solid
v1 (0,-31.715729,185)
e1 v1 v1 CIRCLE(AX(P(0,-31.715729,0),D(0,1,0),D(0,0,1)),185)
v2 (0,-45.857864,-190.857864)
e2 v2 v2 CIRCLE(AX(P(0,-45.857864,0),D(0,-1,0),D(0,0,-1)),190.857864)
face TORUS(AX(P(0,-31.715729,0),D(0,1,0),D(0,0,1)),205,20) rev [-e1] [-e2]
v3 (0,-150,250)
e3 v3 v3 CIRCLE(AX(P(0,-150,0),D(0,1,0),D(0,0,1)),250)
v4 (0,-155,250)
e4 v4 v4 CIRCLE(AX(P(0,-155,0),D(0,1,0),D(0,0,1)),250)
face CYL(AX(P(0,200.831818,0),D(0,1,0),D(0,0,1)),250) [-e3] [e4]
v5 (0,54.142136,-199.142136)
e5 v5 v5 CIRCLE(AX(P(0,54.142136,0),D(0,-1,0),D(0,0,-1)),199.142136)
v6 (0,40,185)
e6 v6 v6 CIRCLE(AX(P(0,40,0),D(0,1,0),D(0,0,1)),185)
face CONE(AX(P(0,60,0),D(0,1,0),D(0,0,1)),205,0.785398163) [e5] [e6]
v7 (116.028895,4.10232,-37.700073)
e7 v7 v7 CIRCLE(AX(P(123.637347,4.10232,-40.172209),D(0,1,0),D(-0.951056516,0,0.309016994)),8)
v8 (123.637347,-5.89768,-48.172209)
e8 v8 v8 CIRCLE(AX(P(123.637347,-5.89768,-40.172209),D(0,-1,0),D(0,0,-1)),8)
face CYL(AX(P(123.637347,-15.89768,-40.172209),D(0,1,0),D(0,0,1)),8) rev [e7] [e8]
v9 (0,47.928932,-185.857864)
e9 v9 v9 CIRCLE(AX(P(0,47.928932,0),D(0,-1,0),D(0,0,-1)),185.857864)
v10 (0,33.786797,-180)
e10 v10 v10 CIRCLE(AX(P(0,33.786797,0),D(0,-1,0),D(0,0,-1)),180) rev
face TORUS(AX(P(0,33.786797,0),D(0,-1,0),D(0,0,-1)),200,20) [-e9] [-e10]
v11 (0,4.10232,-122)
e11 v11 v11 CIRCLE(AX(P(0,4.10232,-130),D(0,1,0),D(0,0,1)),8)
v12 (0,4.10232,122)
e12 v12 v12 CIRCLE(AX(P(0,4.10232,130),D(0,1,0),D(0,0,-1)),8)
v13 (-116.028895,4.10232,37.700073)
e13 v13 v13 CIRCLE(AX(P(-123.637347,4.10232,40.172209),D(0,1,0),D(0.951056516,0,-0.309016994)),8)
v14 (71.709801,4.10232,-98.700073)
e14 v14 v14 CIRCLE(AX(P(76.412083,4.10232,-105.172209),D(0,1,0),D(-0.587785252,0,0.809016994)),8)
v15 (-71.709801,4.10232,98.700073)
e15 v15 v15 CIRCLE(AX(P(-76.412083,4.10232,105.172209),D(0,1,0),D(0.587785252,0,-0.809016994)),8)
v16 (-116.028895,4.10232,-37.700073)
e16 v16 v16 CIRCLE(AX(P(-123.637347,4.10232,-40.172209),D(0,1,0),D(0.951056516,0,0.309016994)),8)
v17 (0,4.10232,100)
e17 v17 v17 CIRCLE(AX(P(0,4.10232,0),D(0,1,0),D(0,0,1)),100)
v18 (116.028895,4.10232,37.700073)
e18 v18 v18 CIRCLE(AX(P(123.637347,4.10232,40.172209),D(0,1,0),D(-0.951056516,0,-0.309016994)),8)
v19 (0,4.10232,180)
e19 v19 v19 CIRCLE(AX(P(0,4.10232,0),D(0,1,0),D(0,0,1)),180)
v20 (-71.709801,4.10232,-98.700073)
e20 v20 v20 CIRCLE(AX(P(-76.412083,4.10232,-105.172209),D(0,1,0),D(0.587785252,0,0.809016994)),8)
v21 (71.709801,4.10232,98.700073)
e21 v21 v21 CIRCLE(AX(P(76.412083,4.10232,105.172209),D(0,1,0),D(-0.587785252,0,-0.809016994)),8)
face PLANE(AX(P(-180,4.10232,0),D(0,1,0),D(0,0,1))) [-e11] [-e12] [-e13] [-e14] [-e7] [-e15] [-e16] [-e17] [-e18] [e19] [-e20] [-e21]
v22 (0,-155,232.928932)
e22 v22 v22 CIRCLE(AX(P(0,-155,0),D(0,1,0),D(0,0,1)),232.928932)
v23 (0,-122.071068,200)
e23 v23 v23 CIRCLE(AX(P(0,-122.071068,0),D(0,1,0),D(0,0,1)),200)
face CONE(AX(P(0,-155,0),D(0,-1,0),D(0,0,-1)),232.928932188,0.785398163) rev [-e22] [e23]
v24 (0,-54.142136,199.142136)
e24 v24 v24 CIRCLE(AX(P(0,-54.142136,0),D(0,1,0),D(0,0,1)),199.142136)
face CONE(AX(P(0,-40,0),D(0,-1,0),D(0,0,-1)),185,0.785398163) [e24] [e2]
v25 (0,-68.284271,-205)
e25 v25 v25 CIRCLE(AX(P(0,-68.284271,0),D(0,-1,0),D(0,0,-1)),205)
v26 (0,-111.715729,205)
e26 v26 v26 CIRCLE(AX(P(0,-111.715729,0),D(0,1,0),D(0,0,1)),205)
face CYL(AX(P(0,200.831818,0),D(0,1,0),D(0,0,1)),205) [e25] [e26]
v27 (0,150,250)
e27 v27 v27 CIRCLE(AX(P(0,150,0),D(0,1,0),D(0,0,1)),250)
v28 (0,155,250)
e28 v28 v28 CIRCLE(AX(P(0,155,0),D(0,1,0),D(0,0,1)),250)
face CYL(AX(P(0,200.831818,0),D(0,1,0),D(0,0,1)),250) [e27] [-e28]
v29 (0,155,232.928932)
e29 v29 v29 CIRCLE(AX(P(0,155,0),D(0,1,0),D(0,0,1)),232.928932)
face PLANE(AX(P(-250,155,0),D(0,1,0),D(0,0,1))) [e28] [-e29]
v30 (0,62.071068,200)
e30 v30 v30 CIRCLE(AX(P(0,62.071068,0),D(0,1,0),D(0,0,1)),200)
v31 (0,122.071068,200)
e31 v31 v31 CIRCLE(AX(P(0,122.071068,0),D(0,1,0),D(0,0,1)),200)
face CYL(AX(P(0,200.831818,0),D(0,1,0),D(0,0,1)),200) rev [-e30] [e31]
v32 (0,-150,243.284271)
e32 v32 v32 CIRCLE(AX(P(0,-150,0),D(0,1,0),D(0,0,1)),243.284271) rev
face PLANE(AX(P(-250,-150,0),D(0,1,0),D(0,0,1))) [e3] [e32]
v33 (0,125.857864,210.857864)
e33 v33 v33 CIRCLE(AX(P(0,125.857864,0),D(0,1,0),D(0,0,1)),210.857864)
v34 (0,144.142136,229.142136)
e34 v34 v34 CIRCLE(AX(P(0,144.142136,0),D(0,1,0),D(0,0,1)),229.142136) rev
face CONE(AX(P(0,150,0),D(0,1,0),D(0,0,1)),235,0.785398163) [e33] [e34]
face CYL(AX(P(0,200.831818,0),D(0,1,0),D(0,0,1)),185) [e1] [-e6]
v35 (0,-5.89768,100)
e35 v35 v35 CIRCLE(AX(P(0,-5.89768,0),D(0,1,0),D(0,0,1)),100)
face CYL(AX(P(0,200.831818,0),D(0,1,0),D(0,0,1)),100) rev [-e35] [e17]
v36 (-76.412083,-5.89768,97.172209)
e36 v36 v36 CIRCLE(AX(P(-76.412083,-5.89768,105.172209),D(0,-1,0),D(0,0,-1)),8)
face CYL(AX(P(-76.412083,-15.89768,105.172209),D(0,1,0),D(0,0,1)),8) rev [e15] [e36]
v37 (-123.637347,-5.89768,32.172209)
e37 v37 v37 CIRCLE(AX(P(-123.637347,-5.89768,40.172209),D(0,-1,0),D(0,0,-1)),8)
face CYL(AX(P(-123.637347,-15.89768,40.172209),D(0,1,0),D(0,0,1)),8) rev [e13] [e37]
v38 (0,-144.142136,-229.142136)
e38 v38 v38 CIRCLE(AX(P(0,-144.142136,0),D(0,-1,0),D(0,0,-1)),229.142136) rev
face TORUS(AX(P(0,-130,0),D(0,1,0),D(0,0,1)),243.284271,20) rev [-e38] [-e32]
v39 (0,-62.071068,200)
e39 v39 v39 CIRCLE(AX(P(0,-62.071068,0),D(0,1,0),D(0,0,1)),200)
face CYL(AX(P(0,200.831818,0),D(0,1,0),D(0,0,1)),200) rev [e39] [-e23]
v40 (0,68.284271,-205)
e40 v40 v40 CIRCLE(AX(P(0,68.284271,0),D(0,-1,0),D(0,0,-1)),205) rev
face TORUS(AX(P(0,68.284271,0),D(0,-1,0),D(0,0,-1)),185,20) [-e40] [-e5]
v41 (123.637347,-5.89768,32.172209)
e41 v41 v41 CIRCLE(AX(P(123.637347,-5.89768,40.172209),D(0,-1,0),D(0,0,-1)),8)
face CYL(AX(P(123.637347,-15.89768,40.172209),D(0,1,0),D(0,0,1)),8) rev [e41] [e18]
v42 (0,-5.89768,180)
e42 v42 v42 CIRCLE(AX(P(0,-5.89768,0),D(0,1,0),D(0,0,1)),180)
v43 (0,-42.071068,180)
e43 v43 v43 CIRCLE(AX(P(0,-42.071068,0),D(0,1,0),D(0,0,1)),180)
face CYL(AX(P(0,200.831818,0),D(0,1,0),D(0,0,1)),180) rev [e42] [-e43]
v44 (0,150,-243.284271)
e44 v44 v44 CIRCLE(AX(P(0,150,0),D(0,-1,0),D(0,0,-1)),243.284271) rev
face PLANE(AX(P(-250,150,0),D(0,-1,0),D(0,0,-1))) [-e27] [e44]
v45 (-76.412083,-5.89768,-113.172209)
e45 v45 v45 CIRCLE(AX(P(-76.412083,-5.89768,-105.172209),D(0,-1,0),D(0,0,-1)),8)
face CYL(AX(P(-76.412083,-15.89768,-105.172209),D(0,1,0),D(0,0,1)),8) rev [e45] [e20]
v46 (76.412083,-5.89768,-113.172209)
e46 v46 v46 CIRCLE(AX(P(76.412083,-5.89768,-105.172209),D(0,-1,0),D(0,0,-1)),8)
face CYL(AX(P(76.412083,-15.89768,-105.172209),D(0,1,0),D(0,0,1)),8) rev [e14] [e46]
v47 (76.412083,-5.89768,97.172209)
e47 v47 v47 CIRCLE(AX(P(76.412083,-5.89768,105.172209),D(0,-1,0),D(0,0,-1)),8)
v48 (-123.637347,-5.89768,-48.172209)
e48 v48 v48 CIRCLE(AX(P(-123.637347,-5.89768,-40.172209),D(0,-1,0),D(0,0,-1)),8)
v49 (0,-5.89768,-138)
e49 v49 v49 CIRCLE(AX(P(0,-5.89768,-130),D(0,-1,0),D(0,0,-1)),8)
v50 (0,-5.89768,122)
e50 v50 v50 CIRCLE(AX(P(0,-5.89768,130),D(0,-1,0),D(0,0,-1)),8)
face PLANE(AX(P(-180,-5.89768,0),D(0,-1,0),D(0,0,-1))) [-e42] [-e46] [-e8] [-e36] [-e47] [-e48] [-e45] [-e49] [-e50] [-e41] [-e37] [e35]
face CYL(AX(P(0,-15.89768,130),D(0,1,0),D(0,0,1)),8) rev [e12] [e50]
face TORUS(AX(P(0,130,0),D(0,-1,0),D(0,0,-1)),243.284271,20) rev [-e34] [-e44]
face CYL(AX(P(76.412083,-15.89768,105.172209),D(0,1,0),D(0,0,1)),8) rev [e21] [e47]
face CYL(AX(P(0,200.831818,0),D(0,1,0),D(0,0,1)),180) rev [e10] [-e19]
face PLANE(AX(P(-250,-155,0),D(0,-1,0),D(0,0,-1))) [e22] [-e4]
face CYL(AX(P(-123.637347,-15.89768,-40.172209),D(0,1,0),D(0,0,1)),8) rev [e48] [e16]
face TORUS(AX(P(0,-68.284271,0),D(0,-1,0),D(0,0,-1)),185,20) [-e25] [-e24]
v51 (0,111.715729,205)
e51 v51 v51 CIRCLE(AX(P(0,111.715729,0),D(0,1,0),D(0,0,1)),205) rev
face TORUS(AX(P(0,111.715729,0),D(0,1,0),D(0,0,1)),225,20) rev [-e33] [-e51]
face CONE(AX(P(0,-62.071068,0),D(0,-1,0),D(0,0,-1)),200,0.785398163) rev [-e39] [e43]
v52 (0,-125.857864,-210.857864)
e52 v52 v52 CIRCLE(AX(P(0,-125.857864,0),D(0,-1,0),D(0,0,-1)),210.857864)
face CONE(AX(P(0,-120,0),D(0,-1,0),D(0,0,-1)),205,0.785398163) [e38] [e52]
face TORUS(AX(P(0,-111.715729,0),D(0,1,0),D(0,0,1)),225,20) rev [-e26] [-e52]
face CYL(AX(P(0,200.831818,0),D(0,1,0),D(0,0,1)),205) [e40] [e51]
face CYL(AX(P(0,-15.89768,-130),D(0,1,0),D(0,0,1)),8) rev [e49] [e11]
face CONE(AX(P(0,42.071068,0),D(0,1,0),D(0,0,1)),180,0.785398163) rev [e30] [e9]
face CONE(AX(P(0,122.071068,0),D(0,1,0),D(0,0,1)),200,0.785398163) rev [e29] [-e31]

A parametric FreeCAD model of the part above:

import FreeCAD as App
import Part
import Sketcher
from FreeCAD import Vector


def edges_at(feature, points):
    """Names of the edges that pass closest to the given points."""
    edges = feature.Shape.Edges
    near = lambda p: min(range(len(edges)), key=lambda i: edges[i].distToShape(Part.Vertex(*p))[0])
    return sorted({f"Edge{near(p) + 1}" for p in points})

doc = App.newDocument("Part")
body = doc.addObject("PartDesign::Body", "Body")

# Sketch on XY plane
sketch1 = body.newObject("Sketcher::SketchObject", "Sketch")
sketch1.AttachmentSupport = (doc.getObject("XY_Plane"), [""])
sketch1.MapMode = "FlatFace"
sketch1.addGeometry([
    Part.LineSegment(Vector(-250, 150, 0), Vector(-235, 150, 0)),  # 0
    Part.LineSegment(Vector(-235, 150, 0), Vector(-205, 120, 0)),  # 1
    Part.LineSegment(Vector(-205, 120, 0), Vector(-205, 60, 0)),  # 2
    Part.LineSegment(Vector(-205, 60, 0), Vector(-185, 40, 0)),  # 3
    Part.LineSegment(Vector(-185, 40, 0), Vector(-185, -40, 0)),  # 4
    Part.LineSegment(Vector(-185, -40, 0), Vector(-205, -60, 0)),  # 5
    Part.LineSegment(Vector(-205, -60, 0), Vector(-205, -120, 0)),  # 6
    Part.LineSegment(Vector(-205, -120, 0), Vector(-235, -150, 0)),  # 7
    Part.LineSegment(Vector(-235, -150, 0), Vector(-250, -150, 0)),  # 8
    Part.LineSegment(Vector(-250, -150, 0), Vector(-250, -155, 0)),  # 9
    Part.LineSegment(Vector(-250, -155, 0), Vector(-233, -155, 0)),  # 10
    Part.LineSegment(Vector(-233, -155, 0), Vector(-200, -122, 0)),  # 11
    Part.LineSegment(Vector(-200, -122, 0), Vector(-200, -62, 0)),  # 12
    Part.LineSegment(Vector(-200, -62, 0), Vector(-180, -42, 0)),  # 13
    Part.LineSegment(Vector(-180, -42, 0), Vector(-180, -6, 0)),  # 14
    Part.LineSegment(Vector(-180, -6, 0), Vector(-100, -6, 0)),  # 15
    Part.LineSegment(Vector(-100, -6, 0), Vector(-100, 4, 0)),  # 16
    Part.LineSegment(Vector(-100, 4, 0), Vector(-180, 4, 0)),  # 17
    Part.LineSegment(Vector(-180, 4, 0), Vector(-180, 42, 0)),  # 18
    Part.LineSegment(Vector(-180, 42, 0), Vector(-200, 62, 0)),  # 19
    Part.LineSegment(Vector(-200, 62, 0), Vector(-200, 122, 0)),  # 20
    Part.LineSegment(Vector(-200, 122, 0), Vector(-233, 155, 0)),  # 21
    Part.LineSegment(Vector(-233, 155, 0), Vector(-250, 155, 0)),  # 22
    Part.LineSegment(Vector(-250, 155, 0), Vector(-250, 150, 0)),  # 23
], False)
sketch1.addConstraint([
    Sketcher.Constraint("Coincident", 0, 2, 1, 1),
    Sketcher.Constraint("Coincident", 1, 2, 2, 1),
    Sketcher.Constraint("Coincident", 2, 2, 3, 1),
    Sketcher.Constraint("Coincident", 3, 2, 4, 1),
    Sketcher.Constraint("Coincident", 4, 2, 5, 1),
    Sketcher.Constraint("Coincident", 5, 2, 6, 1),
    Sketcher.Constraint("Coincident", 6, 2, 7, 1),
    Sketcher.Constraint("Coincident", 7, 2, 8, 1),
    Sketcher.Constraint("Coincident", 8, 2, 9, 1),
    Sketcher.Constraint("Coincident", 9, 2, 10, 1),
    Sketcher.Constraint("Coincident", 10, 2, 11, 1),
    Sketcher.Constraint("Coincident", 11, 2, 12, 1),
    Sketcher.Constraint("Coincident", 12, 2, 13, 1),
    Sketcher.Constraint("Coincident", 13, 2, 14, 1),
    Sketcher.Constraint("Coincident", 14, 2, 15, 1),
    Sketcher.Constraint("Coincident", 15, 2, 16, 1),
    Sketcher.Constraint("Coincident", 16, 2, 17, 1),
    Sketcher.Constraint("Coincident", 17, 2, 18, 1),
    Sketcher.Constraint("Coincident", 18, 2, 19, 1),
    Sketcher.Constraint("Coincident", 19, 2, 20, 1),
    Sketcher.Constraint("Coincident", 20, 2, 21, 1),
    Sketcher.Constraint("Coincident", 21, 2, 22, 1),
    Sketcher.Constraint("Coincident", 22, 2, 23, 1),
    Sketcher.Constraint("Coincident", 23, 2, 0, 1),
    Sketcher.Constraint("Horizontal", 0),
    Sketcher.Constraint("Vertical", 2),
    Sketcher.Constraint("Vertical", 4),
    Sketcher.Constraint("Vertical", 6),
    Sketcher.Constraint("Horizontal", 8),
    Sketcher.Constraint("Vertical", 9),
    Sketcher.Constraint("Horizontal", 10),
    Sketcher.Constraint("Vertical", 12),
    Sketcher.Constraint("Vertical", 14),
    Sketcher.Constraint("Horizontal", 15),
    Sketcher.Constraint("Vertical", 16),
    Sketcher.Constraint("Horizontal", 17),
    Sketcher.Constraint("Vertical", 18),
    Sketcher.Constraint("Vertical", 20),
    Sketcher.Constraint("Horizontal", 22),
    Sketcher.Constraint("Vertical", 23),
    Sketcher.Constraint("Symmetric", 2, 2, 5, 2, -1),
    Sketcher.Constraint("Symmetric", 0, 2, 7, 2, -1),
    Sketcher.Constraint("Symmetric", 13, 2, 18, 2, -1),
    Sketcher.Constraint("Symmetric", 12, 2, 19, 2, -1),
    Sketcher.Constraint("Symmetric", 10, 2, 21, 2, -1),
    Sketcher.Constraint("Parallel", 1, 3),
    Sketcher.Constraint("Perpendicular", 3, 5),
    Sketcher.Constraint("Parallel", 5, 7),
    Sketcher.Constraint("Parallel", 7, 11),
    Sketcher.Constraint("Parallel", 11, 13),
    Sketcher.Constraint("Perpendicular", 13, 19),
    Sketcher.Constraint("Parallel", 19, 21),
    Sketcher.Constraint("Vertical", 9, 2, 22, 2),
    Sketcher.Constraint("Equal", 17, 4),
    Sketcher.Constraint("Equal", 6, 12),
    Sketcher.Constraint("Equal", 5, 13),
    Sketcher.Constraint("DistanceX", 0, 1, 0, 2, 15.0),
    Sketcher.Constraint("DistanceX", 15, 1, 15, 2, 80.0),
    Sketcher.Constraint("DistanceY", 2, 2, 2, 1, 60.0),
    Sketcher.Constraint("DistanceY", 9, 2, 9, 1, 5.0),
    Sketcher.Constraint("DistanceY", 16, 1, 16, 2, 10.0),
    Sketcher.Constraint("DistanceX", 0, 2, -1, 1, 235.0),
    Sketcher.Constraint("DistanceY", -1, 1, 0, 2, 150.0),
    Sketcher.Constraint("DistanceX", 1, 2, -1, 1, 205.0),
    Sketcher.Constraint("DistanceX", 11, 2, -1, 1, 200.0),
    Sketcher.Constraint("DistanceX", 10, 1, 10, 2, 17.071068),
    Sketcher.Constraint("DistanceY", 14, 1, 14, 2, 36.173388),
])
revolution = body.newObject("PartDesign::Revolution", "Revolution")
revolution.Profile = sketch1
revolution.ReferenceAxis = (sketch1, ["V_Axis"])
revolution.Angle = 360
doc.recompute()

fillet = body.newObject("PartDesign::Fillet", "Fillet")
fillet.Base = (revolution, edges_at(revolution, [
    (0, 120, -205),
    (0, 150, -235),
    (0, 42.071, -180),
    (0, -150, -235),
    (0, -120, -205),
    (0, -60, -205),
    (0, -40, -185),
    (0, 60, -205),
]))
fillet.Radius = 20

# Sketch on XZ plane
sketch2 = body.newObject("Sketcher::SketchObject", "Sketch001")
sketch2.AttachmentSupport = (doc.getObject("XZ_Plane"), [""])
sketch2.MapMode = "FlatFace"
sketch2.AttachmentOffset = App.Placement(Vector(0, 0, -4.10232), App.Rotation())
sketch2.addGeometry(Part.Circle(Vector(0, -130, 0), Vector(0, 0, 1), 8), False)
sketch2.addConstraint([
    Sketcher.Constraint("PointOnObject", 0, 3, -2),
    Sketcher.Constraint("Diameter", 0, 16.0),
    Sketcher.Constraint("DistanceY", 0, 3, -1, 1, 130.0),
])
pocket1 = body.newObject("PartDesign::Pocket", "Pocket")
pocket1.Profile = sketch2
pocket1.Length = 20
pocket1.Reversed = True
doc.recompute()

polarpattern = body.newObject("PartDesign::PolarPattern", "PolarPattern")
polarpattern.Originals = [pocket1]
polarpattern.Axis = (doc.getObject("Y_Axis"), [""])
polarpattern.Angle = 360
polarpattern.Occurrences = 10
body.Tip = polarpattern

doc.recompute()
